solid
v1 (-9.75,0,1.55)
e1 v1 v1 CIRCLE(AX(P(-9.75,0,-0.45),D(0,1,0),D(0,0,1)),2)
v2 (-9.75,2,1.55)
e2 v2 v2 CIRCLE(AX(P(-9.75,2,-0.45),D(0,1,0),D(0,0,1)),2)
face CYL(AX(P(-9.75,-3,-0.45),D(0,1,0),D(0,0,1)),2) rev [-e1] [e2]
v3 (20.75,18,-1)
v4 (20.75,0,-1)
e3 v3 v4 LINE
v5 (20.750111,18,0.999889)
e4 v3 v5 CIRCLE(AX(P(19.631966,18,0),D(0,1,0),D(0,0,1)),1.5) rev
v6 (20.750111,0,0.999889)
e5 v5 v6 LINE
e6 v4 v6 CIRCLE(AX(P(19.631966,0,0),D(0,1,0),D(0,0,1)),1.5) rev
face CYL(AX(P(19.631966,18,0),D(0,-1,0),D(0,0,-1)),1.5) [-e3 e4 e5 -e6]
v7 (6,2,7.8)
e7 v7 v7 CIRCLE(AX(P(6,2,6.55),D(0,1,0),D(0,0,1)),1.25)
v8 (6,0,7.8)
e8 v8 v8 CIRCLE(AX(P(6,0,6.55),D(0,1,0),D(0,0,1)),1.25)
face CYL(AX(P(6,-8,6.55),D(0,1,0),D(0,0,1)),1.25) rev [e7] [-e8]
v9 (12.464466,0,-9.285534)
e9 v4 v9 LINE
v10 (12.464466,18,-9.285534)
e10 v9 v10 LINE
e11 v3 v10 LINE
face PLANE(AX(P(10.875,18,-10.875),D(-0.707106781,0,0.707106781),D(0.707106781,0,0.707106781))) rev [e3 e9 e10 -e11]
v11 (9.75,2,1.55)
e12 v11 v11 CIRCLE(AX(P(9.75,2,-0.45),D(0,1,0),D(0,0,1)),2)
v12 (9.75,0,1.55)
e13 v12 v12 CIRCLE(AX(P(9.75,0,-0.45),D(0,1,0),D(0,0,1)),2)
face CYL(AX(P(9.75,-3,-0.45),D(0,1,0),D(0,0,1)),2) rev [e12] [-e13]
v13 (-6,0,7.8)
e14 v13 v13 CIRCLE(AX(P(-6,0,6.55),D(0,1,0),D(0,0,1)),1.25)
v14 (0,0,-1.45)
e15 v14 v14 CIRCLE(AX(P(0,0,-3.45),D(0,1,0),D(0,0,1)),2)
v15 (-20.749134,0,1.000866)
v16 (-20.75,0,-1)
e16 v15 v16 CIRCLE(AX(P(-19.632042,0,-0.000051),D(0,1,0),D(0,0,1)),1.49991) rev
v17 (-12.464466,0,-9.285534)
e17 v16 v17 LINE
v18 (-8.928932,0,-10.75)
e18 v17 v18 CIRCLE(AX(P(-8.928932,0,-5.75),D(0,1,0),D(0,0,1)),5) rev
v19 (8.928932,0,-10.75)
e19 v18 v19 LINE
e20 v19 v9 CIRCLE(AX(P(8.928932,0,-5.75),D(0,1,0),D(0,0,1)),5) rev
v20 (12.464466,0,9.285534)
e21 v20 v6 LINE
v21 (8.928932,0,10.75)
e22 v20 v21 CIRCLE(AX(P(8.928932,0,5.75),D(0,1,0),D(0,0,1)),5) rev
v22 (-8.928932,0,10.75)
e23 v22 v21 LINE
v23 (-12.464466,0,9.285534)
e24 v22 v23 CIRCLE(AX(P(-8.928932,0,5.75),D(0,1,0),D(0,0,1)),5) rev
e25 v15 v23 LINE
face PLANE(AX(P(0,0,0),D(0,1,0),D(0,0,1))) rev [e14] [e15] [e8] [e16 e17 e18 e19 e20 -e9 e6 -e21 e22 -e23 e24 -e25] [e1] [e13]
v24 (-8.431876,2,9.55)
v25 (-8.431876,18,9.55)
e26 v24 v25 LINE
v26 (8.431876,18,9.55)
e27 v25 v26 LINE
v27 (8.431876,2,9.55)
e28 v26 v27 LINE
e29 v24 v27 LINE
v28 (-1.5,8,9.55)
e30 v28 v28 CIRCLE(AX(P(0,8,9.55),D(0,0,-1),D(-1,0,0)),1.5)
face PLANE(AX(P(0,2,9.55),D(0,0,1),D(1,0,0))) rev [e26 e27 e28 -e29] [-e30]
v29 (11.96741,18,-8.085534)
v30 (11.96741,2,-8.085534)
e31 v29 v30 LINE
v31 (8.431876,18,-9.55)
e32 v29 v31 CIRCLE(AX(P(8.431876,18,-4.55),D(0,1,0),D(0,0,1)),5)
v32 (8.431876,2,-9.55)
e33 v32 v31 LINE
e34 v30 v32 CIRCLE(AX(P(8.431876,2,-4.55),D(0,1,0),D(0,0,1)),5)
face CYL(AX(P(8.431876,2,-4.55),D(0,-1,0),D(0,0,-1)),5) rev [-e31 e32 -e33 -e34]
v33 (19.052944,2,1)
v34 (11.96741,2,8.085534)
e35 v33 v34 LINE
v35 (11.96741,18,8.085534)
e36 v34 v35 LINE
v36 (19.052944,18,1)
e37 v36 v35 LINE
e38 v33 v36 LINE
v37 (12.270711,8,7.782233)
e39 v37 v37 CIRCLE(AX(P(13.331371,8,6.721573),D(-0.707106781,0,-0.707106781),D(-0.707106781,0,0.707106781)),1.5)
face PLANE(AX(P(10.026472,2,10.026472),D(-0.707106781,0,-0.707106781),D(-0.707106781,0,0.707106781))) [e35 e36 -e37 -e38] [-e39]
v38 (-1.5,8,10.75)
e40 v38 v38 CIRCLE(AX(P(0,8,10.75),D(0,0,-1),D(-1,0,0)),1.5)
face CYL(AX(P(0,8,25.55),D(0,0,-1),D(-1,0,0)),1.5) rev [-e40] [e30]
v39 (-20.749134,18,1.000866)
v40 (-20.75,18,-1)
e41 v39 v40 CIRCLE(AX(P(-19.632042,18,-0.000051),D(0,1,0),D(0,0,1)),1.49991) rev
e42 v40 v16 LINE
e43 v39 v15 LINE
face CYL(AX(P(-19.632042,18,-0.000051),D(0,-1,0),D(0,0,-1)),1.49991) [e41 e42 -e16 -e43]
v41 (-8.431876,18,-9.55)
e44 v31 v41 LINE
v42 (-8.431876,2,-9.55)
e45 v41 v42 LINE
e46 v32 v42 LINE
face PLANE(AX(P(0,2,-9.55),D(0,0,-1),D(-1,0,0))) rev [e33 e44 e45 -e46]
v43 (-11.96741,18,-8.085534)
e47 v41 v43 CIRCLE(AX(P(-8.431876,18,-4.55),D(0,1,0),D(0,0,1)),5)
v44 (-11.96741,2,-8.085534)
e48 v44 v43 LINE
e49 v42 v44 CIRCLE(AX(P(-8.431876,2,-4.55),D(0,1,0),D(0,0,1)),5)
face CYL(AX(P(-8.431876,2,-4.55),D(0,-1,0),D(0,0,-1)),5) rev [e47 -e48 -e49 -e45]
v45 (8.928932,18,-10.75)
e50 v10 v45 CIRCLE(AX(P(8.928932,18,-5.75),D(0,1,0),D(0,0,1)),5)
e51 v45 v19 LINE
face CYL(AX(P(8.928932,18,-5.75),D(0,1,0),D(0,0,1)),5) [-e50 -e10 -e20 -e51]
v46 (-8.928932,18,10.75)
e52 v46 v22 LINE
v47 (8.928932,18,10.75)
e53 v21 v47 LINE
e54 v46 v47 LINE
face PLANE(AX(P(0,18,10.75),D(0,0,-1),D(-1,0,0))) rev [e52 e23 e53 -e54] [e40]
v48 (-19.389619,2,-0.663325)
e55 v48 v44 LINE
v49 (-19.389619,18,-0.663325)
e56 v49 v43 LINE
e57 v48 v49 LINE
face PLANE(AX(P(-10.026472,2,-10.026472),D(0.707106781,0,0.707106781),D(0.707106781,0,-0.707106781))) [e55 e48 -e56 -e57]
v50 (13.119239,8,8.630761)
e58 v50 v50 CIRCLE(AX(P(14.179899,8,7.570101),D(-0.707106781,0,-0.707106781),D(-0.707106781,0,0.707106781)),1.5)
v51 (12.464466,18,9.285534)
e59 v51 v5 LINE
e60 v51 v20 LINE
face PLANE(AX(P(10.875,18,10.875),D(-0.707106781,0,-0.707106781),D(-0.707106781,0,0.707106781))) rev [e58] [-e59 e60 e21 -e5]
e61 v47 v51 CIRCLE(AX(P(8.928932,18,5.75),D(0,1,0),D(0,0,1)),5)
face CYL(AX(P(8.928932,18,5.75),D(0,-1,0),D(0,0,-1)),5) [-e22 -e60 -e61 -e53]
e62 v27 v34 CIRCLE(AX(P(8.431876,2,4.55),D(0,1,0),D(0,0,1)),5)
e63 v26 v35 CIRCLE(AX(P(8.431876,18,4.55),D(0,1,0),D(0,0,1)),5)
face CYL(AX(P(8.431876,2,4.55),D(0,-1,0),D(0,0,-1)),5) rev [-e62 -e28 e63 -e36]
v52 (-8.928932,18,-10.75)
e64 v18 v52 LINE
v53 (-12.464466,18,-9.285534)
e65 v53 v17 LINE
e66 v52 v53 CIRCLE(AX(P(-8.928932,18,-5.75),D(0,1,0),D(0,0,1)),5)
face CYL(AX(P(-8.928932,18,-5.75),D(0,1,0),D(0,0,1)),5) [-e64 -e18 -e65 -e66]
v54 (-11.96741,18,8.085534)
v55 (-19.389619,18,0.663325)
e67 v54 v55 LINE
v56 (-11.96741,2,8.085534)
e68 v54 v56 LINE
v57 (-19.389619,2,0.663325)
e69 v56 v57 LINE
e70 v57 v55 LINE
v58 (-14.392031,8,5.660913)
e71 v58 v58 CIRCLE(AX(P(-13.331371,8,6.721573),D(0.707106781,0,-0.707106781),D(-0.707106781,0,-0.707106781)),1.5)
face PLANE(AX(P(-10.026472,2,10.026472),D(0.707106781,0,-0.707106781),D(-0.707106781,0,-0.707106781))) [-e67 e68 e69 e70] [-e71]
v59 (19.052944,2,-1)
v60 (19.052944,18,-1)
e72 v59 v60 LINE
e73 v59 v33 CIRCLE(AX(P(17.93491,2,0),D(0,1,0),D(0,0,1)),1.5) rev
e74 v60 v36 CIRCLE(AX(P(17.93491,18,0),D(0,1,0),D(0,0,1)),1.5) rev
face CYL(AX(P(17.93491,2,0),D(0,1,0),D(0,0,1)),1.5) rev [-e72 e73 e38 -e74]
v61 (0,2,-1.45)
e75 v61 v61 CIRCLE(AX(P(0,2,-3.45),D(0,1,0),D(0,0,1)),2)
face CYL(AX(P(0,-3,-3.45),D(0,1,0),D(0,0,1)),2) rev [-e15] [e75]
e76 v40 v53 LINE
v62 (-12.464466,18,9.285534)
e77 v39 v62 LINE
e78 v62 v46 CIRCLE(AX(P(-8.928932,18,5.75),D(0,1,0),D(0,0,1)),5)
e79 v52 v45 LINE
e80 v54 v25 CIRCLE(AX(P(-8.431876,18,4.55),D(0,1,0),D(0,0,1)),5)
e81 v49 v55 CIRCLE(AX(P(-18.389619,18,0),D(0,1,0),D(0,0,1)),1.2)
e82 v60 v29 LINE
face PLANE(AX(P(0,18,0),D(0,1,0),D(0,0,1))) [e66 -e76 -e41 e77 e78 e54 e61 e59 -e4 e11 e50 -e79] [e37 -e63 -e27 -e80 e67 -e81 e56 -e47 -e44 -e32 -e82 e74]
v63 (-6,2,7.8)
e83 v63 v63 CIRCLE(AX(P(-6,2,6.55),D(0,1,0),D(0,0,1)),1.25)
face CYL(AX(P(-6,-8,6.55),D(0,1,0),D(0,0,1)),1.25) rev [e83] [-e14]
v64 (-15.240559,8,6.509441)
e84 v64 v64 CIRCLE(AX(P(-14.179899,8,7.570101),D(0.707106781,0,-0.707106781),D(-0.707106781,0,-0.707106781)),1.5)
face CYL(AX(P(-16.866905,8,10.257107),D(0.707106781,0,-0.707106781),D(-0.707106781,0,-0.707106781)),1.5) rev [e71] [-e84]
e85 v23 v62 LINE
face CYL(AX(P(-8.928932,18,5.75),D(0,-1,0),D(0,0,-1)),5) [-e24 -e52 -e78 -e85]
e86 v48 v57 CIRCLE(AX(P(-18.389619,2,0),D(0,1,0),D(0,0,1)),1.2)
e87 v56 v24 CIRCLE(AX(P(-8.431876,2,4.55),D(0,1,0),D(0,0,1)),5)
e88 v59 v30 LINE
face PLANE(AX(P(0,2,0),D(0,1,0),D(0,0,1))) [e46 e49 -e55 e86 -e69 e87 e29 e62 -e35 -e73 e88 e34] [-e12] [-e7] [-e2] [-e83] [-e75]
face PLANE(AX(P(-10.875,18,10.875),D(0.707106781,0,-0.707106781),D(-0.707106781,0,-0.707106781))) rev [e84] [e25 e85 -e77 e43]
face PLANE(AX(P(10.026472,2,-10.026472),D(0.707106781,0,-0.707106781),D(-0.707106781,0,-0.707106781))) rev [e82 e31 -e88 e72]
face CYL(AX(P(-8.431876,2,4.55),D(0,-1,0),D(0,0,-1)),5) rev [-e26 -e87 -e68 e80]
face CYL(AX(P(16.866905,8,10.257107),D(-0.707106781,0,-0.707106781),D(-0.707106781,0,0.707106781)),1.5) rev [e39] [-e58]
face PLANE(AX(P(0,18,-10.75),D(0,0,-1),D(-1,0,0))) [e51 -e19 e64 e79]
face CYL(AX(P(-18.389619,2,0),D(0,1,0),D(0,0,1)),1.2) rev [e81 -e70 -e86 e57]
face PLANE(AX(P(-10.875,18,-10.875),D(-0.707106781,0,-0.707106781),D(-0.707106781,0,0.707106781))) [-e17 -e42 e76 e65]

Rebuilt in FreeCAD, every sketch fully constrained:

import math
import FreeCAD as App
import Part
import Sketcher

V = App.Vector
Q = App.Units.Quantity


def edges_at(feature, points):
    """Names of the edges that pass closest to the given points."""
    edges = feature.Shape.Edges
    near = lambda p: min(range(len(edges)), key=lambda i: edges[i].distToShape(Part.Vertex(*p))[0])
    return sorted({f"Edge{near(p) + 1}" for p in points})

doc = App.newDocument("Part")
body = doc.addObject("PartDesign::Body", "Body")

# Sketch on XZ plane
sketch1 = doc.addObject("Sketcher::SketchObject", "Sketch")
body.addObject(sketch1)
sketch1.AttachmentSupport = (doc.XZ_Plane, [""])
sketch1.MapMode = "FlatFace"
sketch1.addGeometry(Part.ArcOfCircle(Part.Circle(V(-19.6, 0, 0), V(0, 0, 1), 1.5), math.radians(138), math.radians(222)), False)
sketch1.addGeometry(Part.LineSegment(V(-20.7, 1, 0), V(-11, 10.8, 0)), False)
sketch1.addGeometry(Part.LineSegment(V(-11, 10.8, 0), V(11, 10.8, 0)), False)
sketch1.addGeometry(Part.LineSegment(V(11, 10.8, 0), V(20.8, 1, 0)), False)
sketch1.addGeometry(Part.ArcOfCircle(Part.Circle(V(19.6, 0, 0), V(0, 0, 1), 1.5), math.radians(-42), math.radians(42)), False)
sketch1.addGeometry(Part.LineSegment(V(20.8, -1, 0), V(11, -10.8, 0)), False)
sketch1.addGeometry(Part.LineSegment(V(11, -10.8, 0), V(-11, -10.8, 0)), False)
sketch1.addGeometry(Part.LineSegment(V(-11, -10.8, 0), V(-20.8, -1, 0)), False)
sketch1.addConstraint(Sketcher.Constraint("Coincident", 0, 1, 1, 1))
sketch1.addConstraint(Sketcher.Constraint("Coincident", 1, 2, 2, 1))
sketch1.addConstraint(Sketcher.Constraint("Coincident", 2, 2, 3, 1))
sketch1.addConstraint(Sketcher.Constraint("Coincident", 3, 2, 4, 2))
sketch1.addConstraint(Sketcher.Constraint("Coincident", 4, 1, 5, 1))
sketch1.addConstraint(Sketcher.Constraint("Coincident", 5, 2, 6, 1))
sketch1.addConstraint(Sketcher.Constraint("Coincident", 6, 2, 7, 1))
sketch1.addConstraint(Sketcher.Constraint("Coincident", 7, 2, 0, 2))
sketch1.addConstraint(Sketcher.Constraint("Horizontal", 2))
sketch1.addConstraint(Sketcher.Constraint("Horizontal", 6))
sketch1.addConstraint(Sketcher.Constraint("Symmetric", 1, 2, 5, 2, -1, 1))
sketch1.addConstraint(Sketcher.Constraint("Symmetric", 4, 1, 7, 2, -2))
sketch1.addConstraint(Sketcher.Constraint("Perpendicular", 1, 3))
sketch1.addConstraint(Sketcher.Constraint("Perpendicular", 3, 5))
sketch1.addConstraint(Sketcher.Constraint("Perpendicular", 5, 7))
sketch1.addConstraint(Sketcher.Constraint("Vertical", 2, 2, 5, 2))
sketch1.addConstraint(Sketcher.Constraint("Vertical", 1, 2, 6, 2))
sketch1.addConstraint(Sketcher.Constraint("DistanceX", 2, 1, 2, 2, Q("22 mm")))
sketch1.addConstraint(Sketcher.Constraint("DistanceY", 4, 1, -1, 1, Q("1 mm")))
sketch1.addConstraint(Sketcher.Constraint("DistanceY", 5, 2, 2, 2, Q("21.5 mm")))
sketch1.addConstraint(Sketcher.Constraint("Radius", 0, Q("1.49991 mm")))
sketch1.addConstraint(Sketcher.Constraint("Radius", 4, Q("1.500017 mm")))
sketch1.addConstraint(Sketcher.Constraint("Distance", 3, Q("13.788739 mm")))
sketch1.addConstraint(Sketcher.Constraint("DistanceX", 0, 3, -1, 1, Q("19.632042 mm")))
pad1 = doc.addObject("PartDesign::Pad", "Pad")
body.addObject(pad1)
pad1.Profile = sketch1
pad1.Length = 18
pad1.Reversed = True

# Sketch on XZ plane
sketch2 = doc.addObject("Sketcher::SketchObject", "Sketch001")
body.addObject(sketch2)
sketch2.AttachmentSupport = (doc.XZ_Plane, [""])
sketch2.MapMode = "FlatFace"
sketch2.AttachmentOffset = App.Placement(V(0, 0, -18), App.Rotation())
sketch2.addGeometry(Part.LineSegment(V(-10.5, -9.6, 0), V(-19.4, -0.7, 0)), False)
sketch2.addGeometry(Part.ArcOfCircle(Part.Circle(V(-18.4, 0, 0), V(0, 0, 1), 1.2), math.radians(146), math.radians(214)), False)
sketch2.addGeometry(Part.LineSegment(V(-19.4, 0.7, 0), V(-10.5, 9.6, 0)), False)
sketch2.addGeometry(Part.LineSegment(V(-10.5, 9.6, 0), V(10.5, 9.6, 0)), False)
sketch2.addGeometry(Part.LineSegment(V(10.5, 9.6, 0), V(19.1, 1, 0)), False)
sketch2.addGeometry(Part.ArcOfCircle(Part.Circle(V(17.9, 0, 0), V(0, 0, 1), 1.5), math.radians(-42), math.radians(42)), False)
sketch2.addGeometry(Part.LineSegment(V(19.1, -1, 0), V(10.5, -9.6, 0)), False)
sketch2.addGeometry(Part.LineSegment(V(10.5, -9.6, 0), V(-10.5, -9.6, 0)), False)
sketch2.addConstraint(Sketcher.Constraint("Coincident", 0, 2, 1, 2))
sketch2.addConstraint(Sketcher.Constraint("Coincident", 1, 1, 2, 1))
sketch2.addConstraint(Sketcher.Constraint("Coincident", 2, 2, 3, 1))
sketch2.addConstraint(Sketcher.Constraint("Coincident", 3, 2, 4, 1))
sketch2.addConstraint(Sketcher.Constraint("Coincident", 4, 2, 5, 2))
sketch2.addConstraint(Sketcher.Constraint("Coincident", 5, 1, 6, 1))
sketch2.addConstraint(Sketcher.Constraint("Coincident", 6, 2, 7, 1))
sketch2.addConstraint(Sketcher.Constraint("Coincident", 7, 2, 0, 1))
sketch2.addConstraint(Sketcher.Constraint("Horizontal", 3))
sketch2.addConstraint(Sketcher.Constraint("Horizontal", 7))
sketch2.addConstraint(Sketcher.Constraint("Symmetric", 2, 2, 6, 2, -1, 1))
sketch2.addConstraint(Sketcher.Constraint("Symmetric", 0, 2, 1, 1, -1))
sketch2.addConstraint(Sketcher.Constraint("Symmetric", 4, 2, 5, 1, -1))
sketch2.addConstraint(Sketcher.Constraint("Perpendicular", 0, 2))
sketch2.addConstraint(Sketcher.Constraint("Perpendicular", 2, 4))
sketch2.addConstraint(Sketcher.Constraint("Perpendicular", 4, 6))
sketch2.addConstraint(Sketcher.Constraint("Vertical", 3, 2, 6, 2))
sketch2.addConstraint(Sketcher.Constraint("Radius", 1, Q("1.2 mm")))
sketch2.addConstraint(Sketcher.Constraint("Radius", 5, Q("1.5 mm")))
sketch2.addConstraint(Sketcher.Constraint("DistanceY", -1, 1, 4, 2, Q("1 mm")))
sketch2.addConstraint(Sketcher.Constraint("DistanceX", 0, 2, 1, 3, Q("1 mm")))
sketch2.addConstraint(Sketcher.Constraint("DistanceY", 6, 2, 3, 2, Q("19.1 mm")))
sketch2.addConstraint(Sketcher.Constraint("DistanceX", 3, 1, 3, 2, Q("21.005887 mm")))
pocket1 = doc.addObject("PartDesign::Pocket", "Pocket")
body.addObject(pocket1)
pocket1.Profile = sketch2
pocket1.Length = 16
pocket1.Reversed = True

# Sketch on XY plane
sketch3 = doc.addObject("Sketcher::SketchObject", "Sketch002")
body.addObject(sketch3)
sketch3.AttachmentSupport = (doc.XY_Plane, [""])
sketch3.MapMode = "FlatFace"
sketch3.AttachmentOffset = App.Placement(V(0, 0, 9.55), App.Rotation())
sketch3.addGeometry(Part.Circle(V(0, 8, 0), V(0, 0, 1), 1.5), False)
sketch3.addConstraint(Sketcher.Constraint("PointOnObject", 0, 3, -2))
sketch3.addConstraint(Sketcher.Constraint("Diameter", 0, Q("3 mm")))
sketch3.addConstraint(Sketcher.Constraint("DistanceY", -1, 1, 0, 3, Q("8 mm")))
pocket2 = doc.addObject("PartDesign::Pocket", "Pocket001")
body.addObject(pocket2)
pocket2.Profile = sketch3
pocket2.Length = 16
pocket2.Reversed = True

# Sketch on an angled plane
sketch4 = doc.addObject("Sketcher::SketchObject", "Sketch003")
body.addObject(sketch4)
sketch4.Placement = App.Placement(V(10.026472, 0, 10.026472), App.Rotation(V(-0.707106781, 0, 0.707106781), V(0, 0.999999999, 0), V(-0.707106781, 0, -0.707106781), "ZXY"))
sketch4.addGeometry(Part.Circle(V(-4.7, 8, 0), V(0, 0, 1), 1.5), False)
sketch4.addConstraint(Sketcher.Constraint("Diameter", 0, Q("3 mm")))
sketch4.addConstraint(Sketcher.Constraint("DistanceY", -1, 1, 0, 3, Q("8 mm")))
sketch4.addConstraint(Sketcher.Constraint("DistanceX", 0, 3, -1, 1, Q("4.673833 mm")))
pocket3 = doc.addObject("PartDesign::Pocket", "Pocket002")
body.addObject(pocket3)
pocket3.Profile = sketch4
pocket3.Length = 5

# Sketch on an angled plane
sketch5 = doc.addObject("Sketcher::SketchObject", "Sketch004")
body.addObject(sketch5)
sketch5.Placement = App.Placement(V(-10.026472, 0, 10.026472), App.Rotation(V(-0.707106781, 0, -0.707106781), V(0, 0.999999999, 0), V(0.707106781, 0, -0.707106781), "ZXY"))
sketch5.addGeometry(Part.Circle(V(4.7, 8, 0), V(0, 0, 1), 1.5), False)
sketch5.addConstraint(Sketcher.Constraint("Diameter", 0, Q("3 mm")))
sketch5.addConstraint(Sketcher.Constraint("DistanceY", -1, 1, 0, 3, Q("8 mm")))
sketch5.addConstraint(Sketcher.Constraint("DistanceX", -1, 1, 0, 3, Q("4.673833 mm")))
pocket4 = doc.addObject("PartDesign::Pocket", "Pocket003")
body.addObject(pocket4)
pocket4.Profile = sketch5
pocket4.Length = 5

# Sketch on XZ plane
sketch6 = doc.addObject("Sketcher::SketchObject", "Sketch005")
body.addObject(sketch6)
sketch6.AttachmentSupport = (doc.XZ_Plane, [""])
sketch6.MapMode = "FlatFace"
sketch6.AttachmentOffset = App.Placement(V(0, 0, -2), App.Rotation())
sketch6.addGeometry(Part.Circle(V(-9.8, -0.5, 0), V(0, 0, 1), 2), False)
sketch6.addGeometry(Part.Circle(V(9.8, -0.5, 0), V(0, 0, 1), 2), False)
sketch6.addGeometry(Part.Circle(V(0, -3.5, 0), V(0, 0, 1), 2), False)
sketch6.addConstraint(Sketcher.Constraint("Equal", 0, 1))
sketch6.addConstraint(Sketcher.Constraint("Equal", 1, 2))
sketch6.addConstraint(Sketcher.Constraint("Symmetric", 0, 3, 1, 3, -2))
sketch6.addConstraint(Sketcher.Constraint("PointOnObject", 2, 3, -2))
sketch6.addConstraint(Sketcher.Constraint("Diameter", 0, Q("4 mm")))
sketch6.addConstraint(Sketcher.Constraint("DistanceY", 2, 3, 0, 3, Q("3 mm")))
sketch6.addConstraint(Sketcher.Constraint("DistanceX", 0, 3, 1, 3, Q("19.5 mm")))
sketch6.addConstraint(Sketcher.Constraint("DistanceY", 0, 3, -1, 1, Q("0.45 mm")))
pocket5 = doc.addObject("PartDesign::Pocket", "Pocket004")
body.addObject(pocket5)
pocket5.Profile = sketch6
pocket5.Length = 5
pocket5.Reversed = True

# Sketch on XZ plane
sketch7 = doc.addObject("Sketcher::SketchObject", "Sketch006")
body.addObject(sketch7)
sketch7.AttachmentSupport = (doc.XZ_Plane, [""])
sketch7.MapMode = "FlatFace"
sketch7.AttachmentOffset = App.Placement(V(0, 0, -2), App.Rotation())
sketch7.addGeometry(Part.Circle(V(-6, 6.5, 0), V(0, 0, 1), 1.2), False)
sketch7.addGeometry(Part.Circle(V(6, 6.5, 0), V(0, 0, 1), 1.2), False)
sketch7.addConstraint(Sketcher.Constraint("Equal", 0, 1))
sketch7.addConstraint(Sketcher.Constraint("Symmetric", 0, 3, 1, 3, -2))
sketch7.addConstraint(Sketcher.Constraint("Diameter", 0, Q("2.5 mm")))
sketch7.addConstraint(Sketcher.Constraint("DistanceX", 0, 3, -1, 1, Q("6 mm")))
sketch7.addConstraint(Sketcher.Constraint("DistanceY", -1, 1, 0, 3, Q("6.55 mm")))
pocket6 = doc.addObject("PartDesign::Pocket", "Pocket005")
body.addObject(pocket6)
pocket6.Profile = sketch7
pocket6.Length = 10
pocket6.Reversed = True
doc.recompute()

fillet = doc.addObject("PartDesign::Fillet", "Fillet")
body.addObject(fillet)
fillet.Base = (pocket6, edges_at(pocket6, [(-10.503, 10, -9.55)]))
fillet.Radius = 5
doc.recompute()

fillet2 = doc.addObject("PartDesign::Fillet", "Fillet001")
body.addObject(fillet2)
fillet2.Base = (fillet, edges_at(fillet, [(10.503, 10, -9.55)]))
fillet2.Radius = 5
doc.recompute()

fillet3 = doc.addObject("PartDesign::Fillet", "Fillet002")
body.addObject(fillet3)
fillet3.Base = (fillet2, edges_at(fillet2, [(-10.503, 10, 9.55)]))
fillet3.Radius = 5
doc.recompute()

fillet4 = doc.addObject("PartDesign::Fillet", "Fillet003")
body.addObject(fillet4)
fillet4.Base = (fillet3, edges_at(fillet3, [(10.503, 10, 9.55)]))
fillet4.Radius = 5
doc.recompute()

fillet5 = doc.addObject("PartDesign::Fillet", "Fillet004")
body.addObject(fillet5)
fillet5.Base = (fillet4, edges_at(fillet4, [(-11, 9, -10.75)]))
fillet5.Radius = 5
doc.recompute()

fillet6 = doc.addObject("PartDesign::Fillet", "Fillet005")
body.addObject(fillet6)
fillet6.Base = (fillet5, edges_at(fillet5, [(11, 9, -10.75)]))
fillet6.Radius = 5
doc.recompute()

fillet7 = doc.addObject("PartDesign::Fillet", "Fillet006")
body.addObject(fillet7)
fillet7.Base = (fillet6, edges_at(fillet6, [(-11, 9, 10.75)]))
fillet7.Radius = 5
doc.recompute()

fillet8 = doc.addObject("PartDesign::Fillet", "Fillet007")
body.addObject(fillet8)
fillet8.Base = (fillet7, edges_at(fillet7, [(11, 9, 10.75)]))
fillet8.Radius = 5

doc.recompute()
